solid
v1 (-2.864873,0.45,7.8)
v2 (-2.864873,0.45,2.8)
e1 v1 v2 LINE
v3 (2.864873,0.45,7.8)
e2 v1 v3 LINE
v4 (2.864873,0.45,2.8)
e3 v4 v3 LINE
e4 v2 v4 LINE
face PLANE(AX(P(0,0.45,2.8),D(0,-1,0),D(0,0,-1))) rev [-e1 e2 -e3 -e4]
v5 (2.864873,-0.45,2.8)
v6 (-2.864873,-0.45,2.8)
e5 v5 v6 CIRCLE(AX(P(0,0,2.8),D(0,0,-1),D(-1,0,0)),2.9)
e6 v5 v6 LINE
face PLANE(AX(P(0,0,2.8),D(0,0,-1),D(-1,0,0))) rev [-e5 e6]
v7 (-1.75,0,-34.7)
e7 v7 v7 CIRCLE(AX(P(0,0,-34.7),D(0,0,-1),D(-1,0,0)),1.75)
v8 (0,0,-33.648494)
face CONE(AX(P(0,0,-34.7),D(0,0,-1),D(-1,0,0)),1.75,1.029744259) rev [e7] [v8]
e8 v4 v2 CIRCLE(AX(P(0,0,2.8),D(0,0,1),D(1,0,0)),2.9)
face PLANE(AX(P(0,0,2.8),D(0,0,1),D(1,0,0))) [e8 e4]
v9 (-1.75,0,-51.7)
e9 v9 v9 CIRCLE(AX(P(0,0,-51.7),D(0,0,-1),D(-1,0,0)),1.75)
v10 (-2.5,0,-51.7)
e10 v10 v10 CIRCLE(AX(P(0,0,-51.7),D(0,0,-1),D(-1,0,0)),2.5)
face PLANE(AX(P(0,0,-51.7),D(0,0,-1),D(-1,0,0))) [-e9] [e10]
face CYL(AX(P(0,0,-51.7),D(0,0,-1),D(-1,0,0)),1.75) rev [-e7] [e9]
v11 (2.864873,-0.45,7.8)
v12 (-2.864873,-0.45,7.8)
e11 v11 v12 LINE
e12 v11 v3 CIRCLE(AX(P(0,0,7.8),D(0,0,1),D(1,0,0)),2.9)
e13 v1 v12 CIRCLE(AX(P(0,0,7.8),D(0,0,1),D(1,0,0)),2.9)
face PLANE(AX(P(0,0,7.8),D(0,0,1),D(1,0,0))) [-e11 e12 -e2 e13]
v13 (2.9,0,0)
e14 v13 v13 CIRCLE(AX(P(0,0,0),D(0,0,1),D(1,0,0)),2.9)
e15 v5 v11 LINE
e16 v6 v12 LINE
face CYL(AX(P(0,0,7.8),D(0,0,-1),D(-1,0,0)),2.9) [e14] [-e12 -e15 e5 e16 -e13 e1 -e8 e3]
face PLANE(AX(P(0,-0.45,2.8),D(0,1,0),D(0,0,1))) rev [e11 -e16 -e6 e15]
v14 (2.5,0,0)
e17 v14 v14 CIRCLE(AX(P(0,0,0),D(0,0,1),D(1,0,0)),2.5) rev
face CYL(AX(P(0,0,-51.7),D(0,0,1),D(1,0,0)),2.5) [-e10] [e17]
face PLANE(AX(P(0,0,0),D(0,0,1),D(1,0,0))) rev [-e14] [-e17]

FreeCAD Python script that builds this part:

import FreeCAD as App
import Part
import Sketcher
Q = App.Units.Quantity


def add_polygon(sketch, points):
    """Adds a closed chain of lines whose ends are joined by coincident constraints."""
    first, n = sketch.GeometryCount, len(points)
    for a, b in zip(points, points[1:] + points[:1]):
        sketch.addGeometry(Part.LineSegment(App.Vector(*a, 0), App.Vector(*b, 0)), False)
    for i in range(n):
        sketch.addConstraint(Sketcher.Constraint("Coincident", first + i, 2, first + (i + 1) % n, 1))

doc = App.newDocument("Part")
body = doc.addObject("PartDesign::Body", "Body")

# Sketch on XY plane
sketch1 = body.newObject("Sketcher::SketchObject", "Sketch")
sketch1.AttachmentSupport = (doc.getObject("XY_Plane"), [""])
sketch1.MapMode = "FlatFace"
sketch1.addGeometry(Part.Circle(App.Vector(0, 0, 0), App.Vector(0, 0, 1), 2.9), False)
sketch1.addConstraint([
    Sketcher.Constraint("Coincident", 0, 3, -1, 1),
    Sketcher.Constraint("Diameter", 0, 5.8),
])
pad1 = body.newObject("PartDesign::Pad", "Pad")
pad1.Profile = sketch1
pad1.Length = 7.8

# Sketch on XY plane
sketch2 = body.newObject("Sketcher::SketchObject", "Sketch001")
sketch2.AttachmentSupport = (doc.getObject("XY_Plane"), [""])
sketch2.MapMode = "FlatFace"
sketch2.AttachmentOffset = App.Placement(App.Vector(0, 0, 7.8), App.Rotation())
add_polygon(sketch2, [(2.864873, -0.45), (-2.9, -0.45), (-2.9, -2.9), (2.864873, -2.9)])  # lines 0-3
add_polygon(sketch2, [(2.864873, 0.45), (2.864873, 2.9), (-3.305563, 2.9), (-3.305563, 0.45)])  # lines 4-7
sketch2.addConstraint([
    Sketcher.Constraint("Horizontal", 0),
    Sketcher.Constraint("Vertical", 1),
    Sketcher.Constraint("Horizontal", 2),
    Sketcher.Constraint("Vertical", 3),
    Sketcher.Constraint("Vertical", 4),
    Sketcher.Constraint("Horizontal", 5),
    Sketcher.Constraint("Vertical", 6),
    Sketcher.Constraint("Horizontal", 7),
    Sketcher.Constraint("Symmetric", 2, 2, 4, 2, -1),
    Sketcher.Constraint("Equal", 3, 4),
    Sketcher.Constraint("DistanceY", 1, 2, 1, 1, 2.45),
    Sketcher.Constraint("DistanceX", 0, 2, -1, 1, 2.9),
    Sketcher.Constraint("DistanceY", 1, 2, -1, 1, 2.9),
    Sketcher.Constraint("DistanceX", 0, 2, 0, 1, 5.764873),
    Sketcher.Constraint("DistanceX", 5, 2, 5, 1, 6.170437),
])
pocket1 = body.newObject("PartDesign::Pocket", "Pocket")
pocket1.Profile = sketch2
pocket1.Length = 5

# Sketch on XY plane
sketch3 = body.newObject("Sketcher::SketchObject", "Sketch002")
sketch3.AttachmentSupport = (doc.getObject("XY_Plane"), [""])
sketch3.MapMode = "FlatFace"
sketch3.addGeometry(Part.Circle(App.Vector(0, 0, 0), App.Vector(0, 0, 1), 2.5), False)
sketch3.addConstraint([
    Sketcher.Constraint("Coincident", 0, 3, -1, 1),
    Sketcher.Constraint("Diameter", 0, 5.0),
])
pad2 = body.newObject("PartDesign::Pad", "Pad001")
pad2.Profile = sketch3
pad2.Length = 51.7
pad2.Reversed = True

# Sketch on YZ plane
sketch4 = body.newObject("Sketcher::SketchObject", "Sketch003")
sketch4.AttachmentSupport = (doc.getObject("YZ_Plane"), [""])
sketch4.MapMode = "FlatFace"
add_polygon(sketch4, [(0, -33.648494), (0, -51.7), (1.75, -51.7), (1.75, -34.7)])  # lines 0-3
sketch4.addConstraint([
    Sketcher.Constraint("Vertical", 0),
    Sketcher.Constraint("Horizontal", 1),
    Sketcher.Constraint("Vertical", 2),
    Sketcher.Constraint("PointOnObject", 0, 2, -2),
    Sketcher.Constraint("DistanceY", 2, 1, 2, 2, 17.0),
    Sketcher.Constraint("Angle", 3, Q("149 deg")),
    Sketcher.Constraint("DistanceX", 1, 1, 1, 2, 1.75),
    Sketcher.Constraint("DistanceY", 0, 2, -1, 1, 51.7),
])
groove = body.newObject("PartDesign::Groove", "Groove")
groove.Profile = sketch4
groove.ReferenceAxis = (sketch4, ["V_Axis"])
groove.Angle = 360

doc.recompute()
